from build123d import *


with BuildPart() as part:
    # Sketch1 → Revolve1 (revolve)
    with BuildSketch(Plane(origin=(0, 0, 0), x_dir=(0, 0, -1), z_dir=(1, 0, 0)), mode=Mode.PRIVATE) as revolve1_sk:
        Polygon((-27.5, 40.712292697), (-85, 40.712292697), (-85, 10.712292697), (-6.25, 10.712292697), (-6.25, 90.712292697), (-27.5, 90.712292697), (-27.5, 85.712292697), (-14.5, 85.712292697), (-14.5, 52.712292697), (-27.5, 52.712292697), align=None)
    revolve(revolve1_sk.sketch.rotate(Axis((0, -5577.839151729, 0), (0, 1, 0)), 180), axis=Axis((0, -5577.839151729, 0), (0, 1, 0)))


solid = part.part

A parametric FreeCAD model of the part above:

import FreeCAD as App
import Part
import Sketcher

V = App.Vector
Q = App.Units.Quantity

doc = App.newDocument("Part")
params = doc.addObject("Spreadsheet::Sheet", "Params")
for row, (alias, value) in enumerate([
    ("sketch1_width", "30 mm"),
    ("sketch1_width2", "80 mm"),
    ("sketch1_width3", "5 mm"),
    ("sketch1_width4", "33 mm"),
    ("sketch1_height", "13 mm"),
    ("revolution_angle", "360 deg"),
], start=1):
    params.set(f"A{row}", alias)
    params.set(f"B{row}", "=" + value)
    params.setAlias(f"B{row}", alias)

body = doc.addObject("PartDesign::Body", "Body")

# Sketch on YZ plane
sketch1 = body.newObject("Sketcher::SketchObject", "Sketch")
sketch1.AttachmentSupport = (doc.getObject("YZ_Plane"), [""])
sketch1.MapMode = "FlatFace"
sketch1.addGeometry(Part.LineSegment(V(40.712293, 27.5, 0), V(40.712293, 85, 0)), False)
sketch1.addGeometry(Part.LineSegment(V(40.712293, 85, 0), V(10.712293, 85, 0)), False)
sketch1.addGeometry(Part.LineSegment(V(10.712293, 85, 0), V(10.712293, 6.25, 0)), False)
sketch1.addGeometry(Part.LineSegment(V(10.712293, 6.25, 0), V(90.712293, 6.25, 0)), False)
sketch1.addGeometry(Part.LineSegment(V(90.712293, 6.25, 0), V(90.712293, 27.5, 0)), False)
sketch1.addGeometry(Part.LineSegment(V(90.712293, 27.5, 0), V(85.712293, 27.5, 0)), False)
sketch1.addGeometry(Part.LineSegment(V(85.712293, 27.5, 0), V(85.712293, 14.5, 0)), False)
sketch1.addGeometry(Part.LineSegment(V(85.712293, 14.5, 0), V(52.712293, 14.5, 0)), False)
sketch1.addGeometry(Part.LineSegment(V(52.712293, 14.5, 0), V(52.712293, 27.5, 0)), False)
sketch1.addGeometry(Part.LineSegment(V(52.712293, 27.5, 0), V(40.712293, 27.5, 0)), False)
sketch1.addConstraint(Sketcher.Constraint("Coincident", 0, 2, 1, 1))
sketch1.addConstraint(Sketcher.Constraint("Coincident", 1, 2, 2, 1))
sketch1.addConstraint(Sketcher.Constraint("Coincident", 2, 2, 3, 1))
sketch1.addConstraint(Sketcher.Constraint("Coincident", 3, 2, 4, 1))
sketch1.addConstraint(Sketcher.Constraint("Coincident", 4, 2, 5, 1))
sketch1.addConstraint(Sketcher.Constraint("Coincident", 5, 2, 6, 1))
sketch1.addConstraint(Sketcher.Constraint("Coincident", 6, 2, 7, 1))
sketch1.addConstraint(Sketcher.Constraint("Coincident", 7, 2, 8, 1))
sketch1.addConstraint(Sketcher.Constraint("Coincident", 8, 2, 9, 1))
sketch1.addConstraint(Sketcher.Constraint("Coincident", 9, 2, 0, 1))
sketch1.addConstraint(Sketcher.Constraint("Vertical", 0))
sketch1.addConstraint(Sketcher.Constraint("Horizontal", 1))
sketch1.addConstraint(Sketcher.Constraint("Vertical", 2))
sketch1.addConstraint(Sketcher.Constraint("Horizontal", 3))
sketch1.addConstraint(Sketcher.Constraint("Vertical", 4))
sketch1.addConstraint(Sketcher.Constraint("Horizontal", 5))
sketch1.addConstraint(Sketcher.Constraint("Vertical", 6))
sketch1.addConstraint(Sketcher.Constraint("Horizontal", 7))
sketch1.addConstraint(Sketcher.Constraint("Vertical", 8))
sketch1.addConstraint(Sketcher.Constraint("Horizontal", 9))
sketch1.addConstraint(Sketcher.Constraint("Horizontal", 5, 2, 8, 2))
sketch1.addConstraint(Sketcher.Constraint("DistanceX", 1, 2, 1, 1, Q("30 mm")))
sketch1.addConstraint(Sketcher.Constraint("DistanceX", 3, 1, 3, 2, Q("80 mm")))
sketch1.addConstraint(Sketcher.Constraint("DistanceX", 5, 2, 5, 1, Q("5 mm")))
sketch1.addConstraint(Sketcher.Constraint("DistanceX", 7, 2, 7, 1, Q("33 mm")))
sketch1.addConstraint(Sketcher.Constraint("DistanceY", 6, 2, 6, 1, Q("13 mm")))
sketch1.addConstraint(Sketcher.Constraint("DistanceY", 0, 1, 0, 2, Q("57.5 mm")))
sketch1.addConstraint(Sketcher.Constraint("DistanceY", -1, 1, 0, 2, Q("85 mm")))
sketch1.addConstraint(Sketcher.Constraint("DistanceY", 2, 2, 2, 1, Q("78.75 mm")))
sketch1.addConstraint(Sketcher.Constraint("DistanceX", -1, 1, 0, 2, Q("40.712293 mm")))
sketch1.setExpression("Constraints[21]", "Params.sketch1_width")
sketch1.setExpression("Constraints[22]", "Params.sketch1_width2")
sketch1.setExpression("Constraints[23]", "Params.sketch1_width3")
sketch1.setExpression("Constraints[24]", "Params.sketch1_width4")
sketch1.setExpression("Constraints[25]", "Params.sketch1_height")
revolution = body.newObject("PartDesign::Revolution", "Revolution")
revolution.Profile = sketch1
revolution.ReferenceAxis = (sketch1, ["H_Axis"])
revolution.setExpression("Angle", "Params.revolution_angle")

doc.recompute()
